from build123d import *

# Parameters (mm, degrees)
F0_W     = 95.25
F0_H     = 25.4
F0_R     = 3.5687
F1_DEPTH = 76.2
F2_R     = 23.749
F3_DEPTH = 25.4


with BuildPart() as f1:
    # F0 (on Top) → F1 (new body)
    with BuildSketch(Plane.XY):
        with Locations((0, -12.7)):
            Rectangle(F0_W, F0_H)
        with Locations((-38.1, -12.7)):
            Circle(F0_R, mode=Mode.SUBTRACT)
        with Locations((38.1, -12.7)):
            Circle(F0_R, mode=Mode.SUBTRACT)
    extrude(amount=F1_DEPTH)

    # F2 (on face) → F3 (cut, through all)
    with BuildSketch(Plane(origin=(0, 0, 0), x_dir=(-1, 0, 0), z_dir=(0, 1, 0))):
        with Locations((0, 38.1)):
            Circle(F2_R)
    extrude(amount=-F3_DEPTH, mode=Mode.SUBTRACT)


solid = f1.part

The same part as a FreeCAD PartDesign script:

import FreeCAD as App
import Part
import Sketcher

V = App.Vector
Q = App.Units.Quantity

doc = App.newDocument("Part")
body = doc.addObject("PartDesign::Body", "Body")

sketch1 = body.newObject("Sketcher::SketchObject", "Sketch")
sketch1.AttachmentSupport = (doc.getObject("XY_Plane"), [""])
sketch1.MapMode = "FlatFace"
sketch1.addGeometry(Part.LineSegment(V(-47.6, 0, 0), V(-47.6, -25.4, 0)), False)
sketch1.addGeometry(Part.LineSegment(V(-47.6, -25.4, 0), V(47.6, -25.4, 0)), False)
sketch1.addGeometry(Part.LineSegment(V(47.6, -25.4, 0), V(47.6, 0, 0)), False)
sketch1.addGeometry(Part.LineSegment(V(47.6, 0, 0), V(-47.6, 0, 0)), False)
sketch1.addGeometry(Part.Circle(V(-38.1, -12.7, 0), V(0, 0, 1), 3.6), False)
sketch1.addGeometry(Part.Circle(V(38.1, -12.7, 0), V(0, 0, 1), 3.6), False)
sketch1.addConstraint(Sketcher.Constraint("Coincident", 0, 2, 1, 1))
sketch1.addConstraint(Sketcher.Constraint("Coincident", 1, 2, 2, 1))
sketch1.addConstraint(Sketcher.Constraint("Coincident", 2, 2, 3, 1))
sketch1.addConstraint(Sketcher.Constraint("Coincident", 3, 2, 0, 1))
sketch1.addConstraint(Sketcher.Constraint("Vertical", 0))
sketch1.addConstraint(Sketcher.Constraint("Horizontal", 1))
sketch1.addConstraint(Sketcher.Constraint("Vertical", 2))
sketch1.addConstraint(Sketcher.Constraint("Horizontal", 3))
sketch1.addConstraint(Sketcher.Constraint("Equal", 4, 5))
sketch1.addConstraint(Sketcher.Constraint("Symmetric", 2, 2, 3, 2, -1, 1))
sketch1.addConstraint(Sketcher.Constraint("Symmetric", 4, 3, 5, 3, -2))
sketch1.addConstraint(Sketcher.Constraint("DistanceY", 0, 2, 0, 1, Q("1 in")))
sketch1.addConstraint(Sketcher.Constraint("Diameter", 4, Q("0.281 in")))
sketch1.addConstraint(Sketcher.Constraint("DistanceX", 4, 3, 5, 3, Q("3 in")))
sketch1.addConstraint(Sketcher.Constraint("DistanceX", 1, 1, 1, 2, Q("3.75 in")))
sketch1.addConstraint(Sketcher.Constraint("DistanceY", 4, 3, -1, 1, Q("0.5 in")))
pad1 = body.newObject("PartDesign::Pad", "Pad")
pad1.Profile = sketch1
pad1.Length = Q("3 in")

sketch2 = body.newObject("Sketcher::SketchObject", "Sketch001")
sketch2.AttachmentSupport = (doc.getObject("XZ_Plane"), [""])
sketch2.MapMode = "FlatFace"
sketch2.addGeometry(Part.Circle(V(0, 38, 0), V(0, 0, 1), 24), False)
sketch2.addConstraint(Sketcher.Constraint("PointOnObject", 0, 3, -2))
sketch2.addConstraint(Sketcher.Constraint("Diameter", 0, Q("1.87 in")))
sketch2.addConstraint(Sketcher.Constraint("DistanceY", -1, 1, 0, 3, Q("1.5 in")))
pocket1 = body.newObject("PartDesign::Pocket", "Pocket")
pocket1.Profile = sketch2
pocket1.Type = "ThroughAll"
pocket1.Reversed = True

doc.recompute()
